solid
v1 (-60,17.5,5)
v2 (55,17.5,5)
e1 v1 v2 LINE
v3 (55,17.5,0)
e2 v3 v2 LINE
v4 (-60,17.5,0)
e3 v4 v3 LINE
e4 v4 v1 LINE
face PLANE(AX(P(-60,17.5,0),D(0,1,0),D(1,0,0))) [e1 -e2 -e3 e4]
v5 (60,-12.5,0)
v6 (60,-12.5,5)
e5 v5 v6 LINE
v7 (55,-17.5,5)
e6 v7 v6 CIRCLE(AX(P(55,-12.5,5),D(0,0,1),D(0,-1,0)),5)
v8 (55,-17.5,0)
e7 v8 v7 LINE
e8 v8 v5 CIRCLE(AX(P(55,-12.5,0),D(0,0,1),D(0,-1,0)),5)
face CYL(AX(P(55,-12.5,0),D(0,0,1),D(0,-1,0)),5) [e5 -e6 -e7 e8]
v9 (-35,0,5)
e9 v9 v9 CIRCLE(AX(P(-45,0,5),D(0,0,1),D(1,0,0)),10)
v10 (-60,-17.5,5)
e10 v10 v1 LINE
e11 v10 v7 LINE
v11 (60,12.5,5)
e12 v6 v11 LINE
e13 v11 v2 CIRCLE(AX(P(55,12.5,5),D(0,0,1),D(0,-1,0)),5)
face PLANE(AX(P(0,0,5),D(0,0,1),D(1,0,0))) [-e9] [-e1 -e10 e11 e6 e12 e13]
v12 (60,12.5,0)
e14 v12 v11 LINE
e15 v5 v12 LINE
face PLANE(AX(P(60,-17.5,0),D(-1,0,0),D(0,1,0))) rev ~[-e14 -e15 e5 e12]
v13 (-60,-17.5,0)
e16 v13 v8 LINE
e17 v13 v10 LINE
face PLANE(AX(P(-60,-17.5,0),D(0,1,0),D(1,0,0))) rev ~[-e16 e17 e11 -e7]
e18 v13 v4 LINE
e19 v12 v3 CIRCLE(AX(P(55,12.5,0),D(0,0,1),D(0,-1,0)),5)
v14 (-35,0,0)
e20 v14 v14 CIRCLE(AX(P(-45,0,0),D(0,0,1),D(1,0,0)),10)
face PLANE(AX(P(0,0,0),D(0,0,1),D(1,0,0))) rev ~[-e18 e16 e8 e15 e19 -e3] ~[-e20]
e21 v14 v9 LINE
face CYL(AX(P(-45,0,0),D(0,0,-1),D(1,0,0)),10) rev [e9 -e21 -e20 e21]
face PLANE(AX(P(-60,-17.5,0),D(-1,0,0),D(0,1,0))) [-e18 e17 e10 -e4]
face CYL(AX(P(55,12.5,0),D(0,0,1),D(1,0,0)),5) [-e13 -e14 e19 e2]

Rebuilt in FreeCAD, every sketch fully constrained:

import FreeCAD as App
import Part
import Sketcher
from FreeCAD import Vector


def edges_at(feature, points):
    """Names of the edges that pass closest to the given points."""
    edges = feature.Shape.Edges
    near = lambda p: min(range(len(edges)), key=lambda i: edges[i].distToShape(Part.Vertex(*p))[0])
    return sorted({f"Edge{near(p) + 1}" for p in points})


def add_polygon(sketch, points):
    """Adds a closed chain of lines whose ends are joined by coincident constraints."""
    first, n = sketch.GeometryCount, len(points)
    for a, b in zip(points, points[1:] + points[:1]):
        sketch.addGeometry(Part.LineSegment(App.Vector(*a, 0), App.Vector(*b, 0)), False)
    for i in range(n):
        sketch.addConstraint(Sketcher.Constraint("Coincident", first + i, 2, first + (i + 1) % n, 1))

doc = App.newDocument("Part")
body = doc.addObject("PartDesign::Body", "Body")

sketch1 = doc.addObject("Sketcher::SketchObject", "Sketch")
body.addObject(sketch1)
sketch1.AttachmentSupport = (doc.XY_Plane, [""])
sketch1.MapMode = "FlatFace"
add_polygon(sketch1, [(-60, 18), (-60, -18), (60, -18), (60, 18)])
sketch1.addGeometry(Part.Circle(Vector(-45, 0, 0), Vector(0, 0, 1), 10), False)
sketch1.addConstraint(Sketcher.Constraint("Vertical", 0))
sketch1.addConstraint(Sketcher.Constraint("Horizontal", 1))
sketch1.addConstraint(Sketcher.Constraint("Vertical", 2))
sketch1.addConstraint(Sketcher.Constraint("Horizontal", 3))
sketch1.addConstraint(Sketcher.Constraint("Symmetric", 0, 2, 2, 2, -1, 1))
sketch1.addConstraint(Sketcher.Constraint("PointOnObject", 4, 3, -1))
sketch1.addConstraint(Sketcher.Constraint("Diameter", 4, 20.0))
sketch1.addConstraint(Sketcher.Constraint("DistanceX", 1, 1, 1, 2, 120.0))
sketch1.addConstraint(Sketcher.Constraint("DistanceY", 0, 2, 0, 1, 35.0))
sketch1.addConstraint(Sketcher.Constraint("DistanceX", 4, 3, -1, 1, 45.0))
pad1 = doc.addObject("PartDesign::Pad", "Pad")
body.addObject(pad1)
pad1.Profile = sketch1
pad1.Length = 5
doc.recompute()

fillet = doc.addObject("PartDesign::Fillet", "Fillet")
body.addObject(fillet)
fillet.Base = (pad1, edges_at(pad1, [(60, -17.5, 2.5)]))
fillet.Radius = 5
doc.recompute()

fillet2 = doc.addObject("PartDesign::Fillet", "Fillet001")
body.addObject(fillet2)
fillet2.Base = (fillet, edges_at(fillet, [(60, 17.5, 2.5)]))
fillet2.Radius = 5

doc.recompute()
